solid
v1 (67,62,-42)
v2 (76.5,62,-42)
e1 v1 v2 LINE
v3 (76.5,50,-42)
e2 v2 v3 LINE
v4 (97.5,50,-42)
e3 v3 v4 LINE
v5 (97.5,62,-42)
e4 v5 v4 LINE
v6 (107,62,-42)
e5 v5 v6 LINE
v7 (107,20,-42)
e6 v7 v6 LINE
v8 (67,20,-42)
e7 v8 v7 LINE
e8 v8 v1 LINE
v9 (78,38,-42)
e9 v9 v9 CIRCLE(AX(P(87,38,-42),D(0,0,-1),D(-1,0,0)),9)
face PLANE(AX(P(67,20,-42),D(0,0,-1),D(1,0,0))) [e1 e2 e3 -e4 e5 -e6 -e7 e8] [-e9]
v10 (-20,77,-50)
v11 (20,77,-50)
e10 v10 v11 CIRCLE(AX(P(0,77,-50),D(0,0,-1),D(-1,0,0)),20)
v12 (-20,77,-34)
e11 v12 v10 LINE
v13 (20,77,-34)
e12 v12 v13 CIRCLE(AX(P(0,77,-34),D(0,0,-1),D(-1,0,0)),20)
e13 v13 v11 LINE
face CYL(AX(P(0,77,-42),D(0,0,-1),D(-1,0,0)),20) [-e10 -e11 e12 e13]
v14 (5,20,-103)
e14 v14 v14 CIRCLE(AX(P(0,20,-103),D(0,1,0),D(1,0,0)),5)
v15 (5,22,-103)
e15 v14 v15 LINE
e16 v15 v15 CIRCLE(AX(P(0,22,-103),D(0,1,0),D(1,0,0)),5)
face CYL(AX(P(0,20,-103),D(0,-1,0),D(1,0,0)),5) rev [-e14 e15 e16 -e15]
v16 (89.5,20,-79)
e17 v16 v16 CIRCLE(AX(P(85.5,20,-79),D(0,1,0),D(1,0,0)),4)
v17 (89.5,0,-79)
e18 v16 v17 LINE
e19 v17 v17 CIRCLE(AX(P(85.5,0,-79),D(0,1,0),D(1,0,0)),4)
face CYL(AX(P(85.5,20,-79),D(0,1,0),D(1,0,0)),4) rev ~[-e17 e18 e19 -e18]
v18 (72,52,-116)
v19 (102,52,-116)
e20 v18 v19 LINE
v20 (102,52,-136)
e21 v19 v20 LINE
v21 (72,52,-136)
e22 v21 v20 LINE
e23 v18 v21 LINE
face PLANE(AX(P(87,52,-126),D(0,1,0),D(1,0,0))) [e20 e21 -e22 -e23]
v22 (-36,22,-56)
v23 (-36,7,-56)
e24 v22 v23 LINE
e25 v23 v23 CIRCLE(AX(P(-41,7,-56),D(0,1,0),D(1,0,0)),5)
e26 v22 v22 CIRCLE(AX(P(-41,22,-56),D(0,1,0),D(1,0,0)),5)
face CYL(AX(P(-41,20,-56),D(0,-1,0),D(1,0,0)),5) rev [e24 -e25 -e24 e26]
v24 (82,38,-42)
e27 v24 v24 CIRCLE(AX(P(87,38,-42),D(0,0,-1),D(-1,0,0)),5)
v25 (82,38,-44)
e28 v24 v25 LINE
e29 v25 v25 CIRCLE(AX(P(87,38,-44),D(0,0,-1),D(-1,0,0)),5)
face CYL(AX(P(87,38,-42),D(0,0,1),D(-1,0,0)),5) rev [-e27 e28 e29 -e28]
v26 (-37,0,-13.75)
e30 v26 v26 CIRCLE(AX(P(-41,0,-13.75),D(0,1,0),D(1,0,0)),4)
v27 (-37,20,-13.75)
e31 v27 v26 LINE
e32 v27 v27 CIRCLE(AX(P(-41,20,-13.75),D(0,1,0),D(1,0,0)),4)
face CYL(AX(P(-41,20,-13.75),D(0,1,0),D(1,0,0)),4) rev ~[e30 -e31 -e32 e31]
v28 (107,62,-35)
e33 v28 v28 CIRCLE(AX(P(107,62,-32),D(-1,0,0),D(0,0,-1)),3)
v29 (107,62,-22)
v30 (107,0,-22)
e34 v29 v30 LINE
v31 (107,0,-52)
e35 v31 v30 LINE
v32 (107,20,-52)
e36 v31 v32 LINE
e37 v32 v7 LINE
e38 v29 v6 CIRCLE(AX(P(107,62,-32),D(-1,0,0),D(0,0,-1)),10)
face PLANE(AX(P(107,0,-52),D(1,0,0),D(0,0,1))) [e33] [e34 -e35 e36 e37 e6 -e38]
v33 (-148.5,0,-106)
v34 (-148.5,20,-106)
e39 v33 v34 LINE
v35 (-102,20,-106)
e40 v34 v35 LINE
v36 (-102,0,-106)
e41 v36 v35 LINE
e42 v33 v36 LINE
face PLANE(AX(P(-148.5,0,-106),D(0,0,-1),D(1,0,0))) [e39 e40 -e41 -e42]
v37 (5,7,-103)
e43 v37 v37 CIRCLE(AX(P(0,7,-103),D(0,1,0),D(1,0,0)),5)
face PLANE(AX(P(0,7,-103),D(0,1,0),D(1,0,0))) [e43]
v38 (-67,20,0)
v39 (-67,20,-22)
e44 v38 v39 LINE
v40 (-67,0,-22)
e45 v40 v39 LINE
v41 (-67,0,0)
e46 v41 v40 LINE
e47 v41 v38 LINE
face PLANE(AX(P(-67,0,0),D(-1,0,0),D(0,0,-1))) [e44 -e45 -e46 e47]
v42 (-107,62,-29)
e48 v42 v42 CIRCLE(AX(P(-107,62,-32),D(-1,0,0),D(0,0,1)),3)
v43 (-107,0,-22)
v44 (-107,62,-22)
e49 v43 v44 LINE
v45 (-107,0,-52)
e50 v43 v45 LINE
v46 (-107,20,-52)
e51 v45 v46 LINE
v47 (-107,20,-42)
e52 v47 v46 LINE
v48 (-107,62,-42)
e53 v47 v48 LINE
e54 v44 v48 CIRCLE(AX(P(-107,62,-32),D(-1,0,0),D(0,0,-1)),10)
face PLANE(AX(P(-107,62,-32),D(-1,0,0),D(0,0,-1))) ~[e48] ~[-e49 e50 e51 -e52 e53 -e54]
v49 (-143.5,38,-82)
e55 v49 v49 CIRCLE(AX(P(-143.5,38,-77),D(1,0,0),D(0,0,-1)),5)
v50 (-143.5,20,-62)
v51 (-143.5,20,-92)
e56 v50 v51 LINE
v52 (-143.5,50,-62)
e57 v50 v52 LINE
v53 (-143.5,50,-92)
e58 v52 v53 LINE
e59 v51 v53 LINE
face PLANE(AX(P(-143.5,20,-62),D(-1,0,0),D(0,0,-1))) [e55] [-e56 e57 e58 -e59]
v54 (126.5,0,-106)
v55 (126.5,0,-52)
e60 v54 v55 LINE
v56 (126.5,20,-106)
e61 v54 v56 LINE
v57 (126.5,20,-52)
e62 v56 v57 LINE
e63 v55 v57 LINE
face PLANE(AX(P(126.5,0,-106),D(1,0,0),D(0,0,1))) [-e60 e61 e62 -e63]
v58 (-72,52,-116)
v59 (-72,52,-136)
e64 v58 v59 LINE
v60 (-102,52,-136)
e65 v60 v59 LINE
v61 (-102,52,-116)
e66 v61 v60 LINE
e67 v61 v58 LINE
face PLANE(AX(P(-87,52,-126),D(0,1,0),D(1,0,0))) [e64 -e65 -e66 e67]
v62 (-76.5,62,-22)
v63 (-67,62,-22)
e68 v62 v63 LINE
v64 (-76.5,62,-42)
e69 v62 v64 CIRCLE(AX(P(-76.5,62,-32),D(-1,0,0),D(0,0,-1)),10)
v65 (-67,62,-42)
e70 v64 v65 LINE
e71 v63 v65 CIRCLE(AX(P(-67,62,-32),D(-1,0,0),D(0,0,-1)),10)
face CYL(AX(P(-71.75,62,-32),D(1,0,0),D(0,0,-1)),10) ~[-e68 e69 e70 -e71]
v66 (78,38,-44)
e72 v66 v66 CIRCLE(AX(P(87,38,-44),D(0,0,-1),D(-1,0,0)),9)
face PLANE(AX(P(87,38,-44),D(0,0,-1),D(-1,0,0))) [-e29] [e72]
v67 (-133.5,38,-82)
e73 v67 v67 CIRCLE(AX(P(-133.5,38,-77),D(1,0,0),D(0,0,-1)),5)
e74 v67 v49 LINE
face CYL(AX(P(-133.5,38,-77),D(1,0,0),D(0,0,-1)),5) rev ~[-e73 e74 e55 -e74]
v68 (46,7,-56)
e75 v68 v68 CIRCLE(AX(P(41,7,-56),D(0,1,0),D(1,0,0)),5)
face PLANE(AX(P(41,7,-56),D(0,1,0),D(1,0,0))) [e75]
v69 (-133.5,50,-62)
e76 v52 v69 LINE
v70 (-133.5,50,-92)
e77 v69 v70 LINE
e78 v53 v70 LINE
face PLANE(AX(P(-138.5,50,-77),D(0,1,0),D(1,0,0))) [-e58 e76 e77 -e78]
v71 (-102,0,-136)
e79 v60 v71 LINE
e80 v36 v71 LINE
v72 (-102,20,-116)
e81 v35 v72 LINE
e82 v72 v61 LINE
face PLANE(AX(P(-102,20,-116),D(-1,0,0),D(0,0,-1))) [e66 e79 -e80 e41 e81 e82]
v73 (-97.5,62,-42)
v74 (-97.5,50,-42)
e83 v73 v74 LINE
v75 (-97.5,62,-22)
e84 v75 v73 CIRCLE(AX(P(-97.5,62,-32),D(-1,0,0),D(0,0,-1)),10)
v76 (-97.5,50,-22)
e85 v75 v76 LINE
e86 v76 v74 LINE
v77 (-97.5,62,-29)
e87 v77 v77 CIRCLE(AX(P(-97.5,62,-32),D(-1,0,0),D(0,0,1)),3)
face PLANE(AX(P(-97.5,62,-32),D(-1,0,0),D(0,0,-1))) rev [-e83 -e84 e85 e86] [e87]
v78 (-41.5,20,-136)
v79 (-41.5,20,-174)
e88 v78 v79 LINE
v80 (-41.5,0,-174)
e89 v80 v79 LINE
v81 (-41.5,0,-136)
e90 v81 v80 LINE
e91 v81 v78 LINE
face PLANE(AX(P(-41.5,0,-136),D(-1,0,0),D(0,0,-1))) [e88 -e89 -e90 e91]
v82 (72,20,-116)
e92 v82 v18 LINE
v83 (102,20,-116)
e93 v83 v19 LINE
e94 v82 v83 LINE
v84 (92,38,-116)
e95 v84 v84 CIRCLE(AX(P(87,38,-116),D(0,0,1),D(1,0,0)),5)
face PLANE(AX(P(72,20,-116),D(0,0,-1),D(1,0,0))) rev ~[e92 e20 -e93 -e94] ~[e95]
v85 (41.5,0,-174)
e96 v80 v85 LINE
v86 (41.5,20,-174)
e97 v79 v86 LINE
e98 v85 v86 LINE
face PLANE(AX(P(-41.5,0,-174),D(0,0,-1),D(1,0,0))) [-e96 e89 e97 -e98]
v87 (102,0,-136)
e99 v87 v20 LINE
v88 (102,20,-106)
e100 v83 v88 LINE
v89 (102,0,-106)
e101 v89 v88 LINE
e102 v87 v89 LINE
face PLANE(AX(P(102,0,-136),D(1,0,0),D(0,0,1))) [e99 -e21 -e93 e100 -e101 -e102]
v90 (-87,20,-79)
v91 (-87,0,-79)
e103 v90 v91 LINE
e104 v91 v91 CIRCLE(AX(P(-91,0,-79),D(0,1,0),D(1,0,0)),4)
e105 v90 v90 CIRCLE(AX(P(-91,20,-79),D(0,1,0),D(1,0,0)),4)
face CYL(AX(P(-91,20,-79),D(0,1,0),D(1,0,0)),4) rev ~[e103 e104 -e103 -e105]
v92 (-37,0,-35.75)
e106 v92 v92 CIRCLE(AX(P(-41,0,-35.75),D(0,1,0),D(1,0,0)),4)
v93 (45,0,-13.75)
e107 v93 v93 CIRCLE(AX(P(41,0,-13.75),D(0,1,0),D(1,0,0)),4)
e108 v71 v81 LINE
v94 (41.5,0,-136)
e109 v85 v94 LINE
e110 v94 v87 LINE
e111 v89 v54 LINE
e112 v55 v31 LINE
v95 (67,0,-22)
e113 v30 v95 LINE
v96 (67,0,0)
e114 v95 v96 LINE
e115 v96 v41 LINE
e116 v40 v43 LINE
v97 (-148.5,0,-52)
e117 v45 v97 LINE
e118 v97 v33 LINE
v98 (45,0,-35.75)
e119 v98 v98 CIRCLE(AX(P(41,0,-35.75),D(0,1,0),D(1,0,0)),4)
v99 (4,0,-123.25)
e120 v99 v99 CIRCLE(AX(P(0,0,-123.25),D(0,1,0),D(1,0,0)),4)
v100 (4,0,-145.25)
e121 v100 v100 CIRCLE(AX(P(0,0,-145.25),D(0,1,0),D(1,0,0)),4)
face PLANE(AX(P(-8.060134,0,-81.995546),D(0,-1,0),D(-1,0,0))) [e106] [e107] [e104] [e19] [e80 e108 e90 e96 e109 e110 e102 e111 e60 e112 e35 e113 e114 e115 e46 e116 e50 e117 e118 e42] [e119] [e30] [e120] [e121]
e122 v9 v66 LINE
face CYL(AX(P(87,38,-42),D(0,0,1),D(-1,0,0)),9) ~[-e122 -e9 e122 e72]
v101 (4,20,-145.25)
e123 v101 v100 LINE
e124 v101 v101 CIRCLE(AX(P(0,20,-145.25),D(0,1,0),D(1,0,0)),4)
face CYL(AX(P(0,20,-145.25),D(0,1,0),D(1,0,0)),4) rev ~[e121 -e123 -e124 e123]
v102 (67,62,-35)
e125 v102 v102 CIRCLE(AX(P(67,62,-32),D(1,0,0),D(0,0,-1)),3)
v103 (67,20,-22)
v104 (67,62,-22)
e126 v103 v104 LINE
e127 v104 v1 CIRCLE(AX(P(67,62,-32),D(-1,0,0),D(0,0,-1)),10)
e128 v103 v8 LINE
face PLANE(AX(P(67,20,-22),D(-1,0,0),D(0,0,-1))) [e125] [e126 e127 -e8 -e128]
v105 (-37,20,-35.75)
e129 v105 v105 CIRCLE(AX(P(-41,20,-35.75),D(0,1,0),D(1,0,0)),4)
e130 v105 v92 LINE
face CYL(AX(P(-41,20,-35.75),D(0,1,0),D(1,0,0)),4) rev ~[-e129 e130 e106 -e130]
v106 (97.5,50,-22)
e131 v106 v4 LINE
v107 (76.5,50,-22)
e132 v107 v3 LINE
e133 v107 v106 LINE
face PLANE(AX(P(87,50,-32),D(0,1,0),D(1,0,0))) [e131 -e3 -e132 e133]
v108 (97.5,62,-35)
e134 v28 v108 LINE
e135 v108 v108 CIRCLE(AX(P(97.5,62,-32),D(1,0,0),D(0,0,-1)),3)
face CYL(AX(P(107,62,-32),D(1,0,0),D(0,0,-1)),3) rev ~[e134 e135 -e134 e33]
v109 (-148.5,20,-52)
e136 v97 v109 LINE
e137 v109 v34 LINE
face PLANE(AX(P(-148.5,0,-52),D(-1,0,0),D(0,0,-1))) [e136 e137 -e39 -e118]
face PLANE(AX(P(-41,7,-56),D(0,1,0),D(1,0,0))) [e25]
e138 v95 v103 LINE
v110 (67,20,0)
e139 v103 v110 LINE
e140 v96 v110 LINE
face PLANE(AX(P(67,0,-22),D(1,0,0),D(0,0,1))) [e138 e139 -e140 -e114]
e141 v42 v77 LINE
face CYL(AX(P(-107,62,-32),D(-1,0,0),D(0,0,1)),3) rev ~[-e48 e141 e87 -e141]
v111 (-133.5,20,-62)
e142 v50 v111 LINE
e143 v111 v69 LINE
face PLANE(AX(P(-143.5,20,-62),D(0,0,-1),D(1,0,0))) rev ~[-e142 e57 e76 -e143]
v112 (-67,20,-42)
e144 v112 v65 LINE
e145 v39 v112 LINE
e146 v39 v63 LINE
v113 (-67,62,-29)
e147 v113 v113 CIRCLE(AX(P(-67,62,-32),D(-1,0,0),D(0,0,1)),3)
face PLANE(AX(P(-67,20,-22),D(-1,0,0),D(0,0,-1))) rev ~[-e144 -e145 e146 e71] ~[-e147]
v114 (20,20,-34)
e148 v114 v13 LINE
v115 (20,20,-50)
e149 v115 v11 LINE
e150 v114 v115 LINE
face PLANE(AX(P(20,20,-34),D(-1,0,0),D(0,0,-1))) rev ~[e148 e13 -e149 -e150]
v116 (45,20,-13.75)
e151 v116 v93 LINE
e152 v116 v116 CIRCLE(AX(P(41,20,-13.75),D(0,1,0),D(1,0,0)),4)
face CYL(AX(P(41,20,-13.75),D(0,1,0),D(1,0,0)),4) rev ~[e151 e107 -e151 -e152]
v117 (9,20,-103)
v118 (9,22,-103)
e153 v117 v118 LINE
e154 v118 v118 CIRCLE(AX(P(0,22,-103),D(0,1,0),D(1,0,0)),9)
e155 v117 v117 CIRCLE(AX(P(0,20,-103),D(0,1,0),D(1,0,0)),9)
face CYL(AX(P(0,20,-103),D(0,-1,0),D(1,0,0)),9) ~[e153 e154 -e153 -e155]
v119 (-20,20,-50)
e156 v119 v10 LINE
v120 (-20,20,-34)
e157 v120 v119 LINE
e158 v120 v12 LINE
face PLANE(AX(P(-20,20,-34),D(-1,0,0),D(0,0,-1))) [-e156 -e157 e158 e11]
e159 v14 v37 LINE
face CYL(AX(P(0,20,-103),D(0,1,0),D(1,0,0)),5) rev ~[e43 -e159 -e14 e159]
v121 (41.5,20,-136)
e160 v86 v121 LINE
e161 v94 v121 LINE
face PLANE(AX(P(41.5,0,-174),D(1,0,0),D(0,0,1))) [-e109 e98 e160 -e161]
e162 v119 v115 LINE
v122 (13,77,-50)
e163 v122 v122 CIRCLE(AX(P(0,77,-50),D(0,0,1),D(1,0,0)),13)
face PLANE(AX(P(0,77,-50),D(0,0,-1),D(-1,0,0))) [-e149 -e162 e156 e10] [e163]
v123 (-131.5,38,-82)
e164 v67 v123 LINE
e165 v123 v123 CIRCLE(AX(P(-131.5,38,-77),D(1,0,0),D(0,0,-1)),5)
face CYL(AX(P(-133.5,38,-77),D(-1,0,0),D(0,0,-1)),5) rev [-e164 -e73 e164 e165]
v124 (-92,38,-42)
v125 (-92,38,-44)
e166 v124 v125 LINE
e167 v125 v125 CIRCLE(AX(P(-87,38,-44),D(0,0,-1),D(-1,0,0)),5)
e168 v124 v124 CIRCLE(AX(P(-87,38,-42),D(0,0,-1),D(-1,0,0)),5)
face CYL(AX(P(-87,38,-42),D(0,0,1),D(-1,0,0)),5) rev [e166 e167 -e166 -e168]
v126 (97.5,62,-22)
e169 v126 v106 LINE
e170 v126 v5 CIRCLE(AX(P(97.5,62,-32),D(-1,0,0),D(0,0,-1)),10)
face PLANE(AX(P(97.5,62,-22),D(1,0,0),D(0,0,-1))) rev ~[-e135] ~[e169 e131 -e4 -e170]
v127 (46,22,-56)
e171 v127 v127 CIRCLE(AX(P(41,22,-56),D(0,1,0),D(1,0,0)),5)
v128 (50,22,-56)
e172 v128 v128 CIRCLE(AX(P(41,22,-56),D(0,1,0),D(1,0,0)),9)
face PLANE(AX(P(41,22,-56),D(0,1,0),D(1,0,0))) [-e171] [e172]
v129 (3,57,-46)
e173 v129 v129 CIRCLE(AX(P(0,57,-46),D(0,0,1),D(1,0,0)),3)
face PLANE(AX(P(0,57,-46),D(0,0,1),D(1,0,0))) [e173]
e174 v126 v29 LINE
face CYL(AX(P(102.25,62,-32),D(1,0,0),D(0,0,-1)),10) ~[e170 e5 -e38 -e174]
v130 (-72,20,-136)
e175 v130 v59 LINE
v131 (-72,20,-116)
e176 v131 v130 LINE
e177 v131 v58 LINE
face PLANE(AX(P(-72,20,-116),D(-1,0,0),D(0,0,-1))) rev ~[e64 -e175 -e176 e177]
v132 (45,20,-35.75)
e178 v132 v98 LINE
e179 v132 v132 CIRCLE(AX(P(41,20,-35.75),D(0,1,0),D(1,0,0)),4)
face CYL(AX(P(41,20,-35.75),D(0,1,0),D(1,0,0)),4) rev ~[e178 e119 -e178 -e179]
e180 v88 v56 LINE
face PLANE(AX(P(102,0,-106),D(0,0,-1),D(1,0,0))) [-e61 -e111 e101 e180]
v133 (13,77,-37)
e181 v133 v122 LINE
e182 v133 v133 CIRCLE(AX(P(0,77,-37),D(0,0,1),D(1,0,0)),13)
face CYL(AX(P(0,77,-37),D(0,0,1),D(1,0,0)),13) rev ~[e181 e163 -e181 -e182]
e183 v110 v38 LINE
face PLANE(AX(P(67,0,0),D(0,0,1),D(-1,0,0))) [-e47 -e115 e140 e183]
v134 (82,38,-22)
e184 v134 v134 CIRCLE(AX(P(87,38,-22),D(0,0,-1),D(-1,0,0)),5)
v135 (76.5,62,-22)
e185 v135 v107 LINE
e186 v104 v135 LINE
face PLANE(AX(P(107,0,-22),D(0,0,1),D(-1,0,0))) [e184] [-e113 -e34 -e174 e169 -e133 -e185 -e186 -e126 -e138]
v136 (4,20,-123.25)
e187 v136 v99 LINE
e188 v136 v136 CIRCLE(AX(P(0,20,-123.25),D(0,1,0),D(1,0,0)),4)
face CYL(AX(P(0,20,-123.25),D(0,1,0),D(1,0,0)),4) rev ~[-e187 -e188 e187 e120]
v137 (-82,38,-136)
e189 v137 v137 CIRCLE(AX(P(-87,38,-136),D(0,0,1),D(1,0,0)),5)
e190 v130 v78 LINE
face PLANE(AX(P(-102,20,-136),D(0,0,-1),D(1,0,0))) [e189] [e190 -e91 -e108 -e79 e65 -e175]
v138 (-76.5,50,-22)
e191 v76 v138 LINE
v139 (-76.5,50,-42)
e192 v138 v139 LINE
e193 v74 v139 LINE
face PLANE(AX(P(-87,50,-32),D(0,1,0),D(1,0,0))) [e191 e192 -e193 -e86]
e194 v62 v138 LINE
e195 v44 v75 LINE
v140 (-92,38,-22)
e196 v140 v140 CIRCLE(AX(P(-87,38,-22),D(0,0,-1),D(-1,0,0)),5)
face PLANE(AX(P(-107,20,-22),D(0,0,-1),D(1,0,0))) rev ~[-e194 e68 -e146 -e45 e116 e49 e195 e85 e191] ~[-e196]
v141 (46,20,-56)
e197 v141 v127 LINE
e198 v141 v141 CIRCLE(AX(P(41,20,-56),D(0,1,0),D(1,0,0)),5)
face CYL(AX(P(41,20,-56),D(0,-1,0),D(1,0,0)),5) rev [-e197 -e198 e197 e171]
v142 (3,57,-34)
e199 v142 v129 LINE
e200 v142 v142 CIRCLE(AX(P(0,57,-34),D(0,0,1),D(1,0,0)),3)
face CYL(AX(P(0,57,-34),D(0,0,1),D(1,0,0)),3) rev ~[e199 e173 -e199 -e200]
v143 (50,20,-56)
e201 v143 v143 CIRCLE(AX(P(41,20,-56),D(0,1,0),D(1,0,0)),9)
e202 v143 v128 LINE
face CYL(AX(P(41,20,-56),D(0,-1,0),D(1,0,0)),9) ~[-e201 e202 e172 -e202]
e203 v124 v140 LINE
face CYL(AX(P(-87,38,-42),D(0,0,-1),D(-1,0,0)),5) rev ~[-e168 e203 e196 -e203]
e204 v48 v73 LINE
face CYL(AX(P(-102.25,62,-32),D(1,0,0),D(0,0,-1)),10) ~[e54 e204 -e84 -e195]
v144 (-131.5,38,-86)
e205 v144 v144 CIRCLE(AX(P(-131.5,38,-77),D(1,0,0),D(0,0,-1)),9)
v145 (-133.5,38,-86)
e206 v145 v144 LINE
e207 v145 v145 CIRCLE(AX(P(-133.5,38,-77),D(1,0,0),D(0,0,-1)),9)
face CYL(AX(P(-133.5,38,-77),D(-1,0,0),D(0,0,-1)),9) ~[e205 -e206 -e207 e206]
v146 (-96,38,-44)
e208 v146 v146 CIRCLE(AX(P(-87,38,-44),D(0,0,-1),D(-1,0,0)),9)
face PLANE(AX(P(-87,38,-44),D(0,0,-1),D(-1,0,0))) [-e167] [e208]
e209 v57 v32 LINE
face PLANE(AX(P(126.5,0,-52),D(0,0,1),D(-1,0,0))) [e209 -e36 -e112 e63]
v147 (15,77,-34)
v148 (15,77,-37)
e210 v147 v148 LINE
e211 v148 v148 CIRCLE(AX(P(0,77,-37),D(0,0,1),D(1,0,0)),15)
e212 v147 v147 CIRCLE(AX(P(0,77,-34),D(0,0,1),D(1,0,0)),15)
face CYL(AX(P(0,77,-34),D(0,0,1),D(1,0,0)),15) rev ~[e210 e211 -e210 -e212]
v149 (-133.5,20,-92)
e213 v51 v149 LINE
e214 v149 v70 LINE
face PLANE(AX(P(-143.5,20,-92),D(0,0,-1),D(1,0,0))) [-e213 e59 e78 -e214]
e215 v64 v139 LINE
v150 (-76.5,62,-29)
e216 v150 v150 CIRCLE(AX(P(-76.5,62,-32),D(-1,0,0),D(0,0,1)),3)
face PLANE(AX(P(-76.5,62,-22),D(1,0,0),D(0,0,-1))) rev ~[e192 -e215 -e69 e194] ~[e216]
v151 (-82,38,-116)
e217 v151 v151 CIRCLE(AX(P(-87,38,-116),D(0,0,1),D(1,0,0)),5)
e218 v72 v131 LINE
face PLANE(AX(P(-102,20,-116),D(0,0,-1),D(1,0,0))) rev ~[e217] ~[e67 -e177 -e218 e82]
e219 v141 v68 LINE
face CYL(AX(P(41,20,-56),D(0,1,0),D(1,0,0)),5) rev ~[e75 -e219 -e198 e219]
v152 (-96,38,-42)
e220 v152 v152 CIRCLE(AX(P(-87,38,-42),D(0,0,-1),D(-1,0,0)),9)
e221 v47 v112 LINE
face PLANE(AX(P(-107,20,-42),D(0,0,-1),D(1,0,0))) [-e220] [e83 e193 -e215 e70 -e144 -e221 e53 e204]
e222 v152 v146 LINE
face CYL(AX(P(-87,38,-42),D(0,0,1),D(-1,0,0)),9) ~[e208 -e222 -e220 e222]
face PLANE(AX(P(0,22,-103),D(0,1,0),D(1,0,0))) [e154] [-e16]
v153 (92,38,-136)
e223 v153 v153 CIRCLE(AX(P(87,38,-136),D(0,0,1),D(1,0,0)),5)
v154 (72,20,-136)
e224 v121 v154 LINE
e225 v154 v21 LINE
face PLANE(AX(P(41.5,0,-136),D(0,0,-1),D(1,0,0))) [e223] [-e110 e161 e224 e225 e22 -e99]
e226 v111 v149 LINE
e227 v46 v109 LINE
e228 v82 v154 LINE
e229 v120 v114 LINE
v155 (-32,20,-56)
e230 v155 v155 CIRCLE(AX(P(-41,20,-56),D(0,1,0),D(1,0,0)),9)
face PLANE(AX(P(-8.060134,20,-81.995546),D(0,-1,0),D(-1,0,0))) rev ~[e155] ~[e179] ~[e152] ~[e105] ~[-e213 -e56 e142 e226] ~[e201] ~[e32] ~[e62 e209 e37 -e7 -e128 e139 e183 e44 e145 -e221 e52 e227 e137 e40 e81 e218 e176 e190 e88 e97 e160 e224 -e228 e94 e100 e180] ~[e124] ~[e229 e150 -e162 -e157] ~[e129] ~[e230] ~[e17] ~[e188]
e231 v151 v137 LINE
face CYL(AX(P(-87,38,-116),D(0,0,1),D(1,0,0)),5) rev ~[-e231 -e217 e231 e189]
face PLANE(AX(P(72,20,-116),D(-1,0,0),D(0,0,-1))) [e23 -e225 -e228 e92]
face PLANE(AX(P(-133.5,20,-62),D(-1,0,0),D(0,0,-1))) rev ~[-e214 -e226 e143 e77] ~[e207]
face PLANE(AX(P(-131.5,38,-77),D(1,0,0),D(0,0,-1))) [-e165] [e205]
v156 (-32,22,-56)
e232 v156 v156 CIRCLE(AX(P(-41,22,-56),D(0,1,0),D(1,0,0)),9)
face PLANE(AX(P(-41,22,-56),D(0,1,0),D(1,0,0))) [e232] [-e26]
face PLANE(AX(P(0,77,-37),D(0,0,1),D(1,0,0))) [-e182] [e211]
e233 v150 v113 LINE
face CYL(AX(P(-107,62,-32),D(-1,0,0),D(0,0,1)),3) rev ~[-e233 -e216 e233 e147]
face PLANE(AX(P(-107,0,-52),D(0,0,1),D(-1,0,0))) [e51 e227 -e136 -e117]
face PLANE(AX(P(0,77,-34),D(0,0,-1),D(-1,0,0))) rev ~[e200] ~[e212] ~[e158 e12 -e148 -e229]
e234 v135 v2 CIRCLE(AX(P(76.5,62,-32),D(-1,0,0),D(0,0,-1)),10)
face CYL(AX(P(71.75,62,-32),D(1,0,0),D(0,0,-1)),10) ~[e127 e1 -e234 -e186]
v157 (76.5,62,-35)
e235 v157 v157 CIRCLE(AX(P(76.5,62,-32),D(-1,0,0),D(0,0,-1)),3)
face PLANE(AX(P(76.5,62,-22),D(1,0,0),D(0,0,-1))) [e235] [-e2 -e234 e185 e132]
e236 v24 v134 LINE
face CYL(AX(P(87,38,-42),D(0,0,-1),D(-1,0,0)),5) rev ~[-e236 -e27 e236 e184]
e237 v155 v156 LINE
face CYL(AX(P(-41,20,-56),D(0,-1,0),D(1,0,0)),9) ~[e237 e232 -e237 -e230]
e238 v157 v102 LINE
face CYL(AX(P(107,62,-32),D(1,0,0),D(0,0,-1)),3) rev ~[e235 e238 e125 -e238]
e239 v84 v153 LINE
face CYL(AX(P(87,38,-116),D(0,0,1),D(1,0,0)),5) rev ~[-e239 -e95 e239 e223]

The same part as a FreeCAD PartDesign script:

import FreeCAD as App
import Part
import Sketcher


def add_polygon(sketch, points):
    """Adds a closed chain of lines whose ends are joined by coincident constraints."""
    first, n = sketch.GeometryCount, len(points)
    for a, b in zip(points, points[1:] + points[:1]):
        sketch.addGeometry(Part.LineSegment(App.Vector(*a, 0), App.Vector(*b, 0)), False)
    for i in range(n):
        sketch.addConstraint(Sketcher.Constraint("Coincident", first + i, 2, first + (i + 1) % n, 1))

doc = App.newDocument("Part")
body = doc.addObject("PartDesign::Body", "Body")

sketch1 = doc.addObject("Sketcher::SketchObject", "Sketch")
body.addObject(sketch1)
sketch1.AttachmentSupport = (doc.XZ_Plane, [""])
sketch1.MapMode = "FlatFace"
add_polygon(sketch1, [(-42, -136), (-102, -136), (-102, -106), (-148, -106), (-148, -52), (-107, -52), (-107, -22), (-67, -22), (-67, 0), (67, 0), (67, -22), (107, -22), (107, -52), (126, -52), (126, -106), (102, -106), (102, -136), (42, -136), (42, -174), (-42, -174)])
sketch1.addConstraint([
    Sketcher.Constraint("Horizontal", 0),
    Sketcher.Constraint("Vertical", 1),
    Sketcher.Constraint("Horizontal", 2),
    Sketcher.Constraint("Vertical", 3),
    Sketcher.Constraint("Horizontal", 4),
    Sketcher.Constraint("Vertical", 5),
    Sketcher.Constraint("Horizontal", 6),
    Sketcher.Constraint("Vertical", 7),
    Sketcher.Constraint("Horizontal", 8),
    Sketcher.Constraint("Vertical", 9),
    Sketcher.Constraint("Horizontal", 10),
    Sketcher.Constraint("Vertical", 11),
    Sketcher.Constraint("Horizontal", 12),
    Sketcher.Constraint("Vertical", 13),
    Sketcher.Constraint("Horizontal", 14),
    Sketcher.Constraint("Vertical", 15),
    Sketcher.Constraint("Horizontal", 16),
    Sketcher.Constraint("Vertical", 17),
    Sketcher.Constraint("Horizontal", 18),
    Sketcher.Constraint("Vertical", 19),
    Sketcher.Constraint("Symmetric", 7, 2, 8, 2, -1, 1),
    Sketcher.Constraint("Symmetric", 5, 2, 10, 2, -2),
    Sketcher.Constraint("Symmetric", 1, 2, 14, 2, -2),
    Sketcher.Constraint("Symmetric", 16, 2, 19, 2, -2),
    Sketcher.Constraint("Horizontal", 4, 2, 11, 2),
    Sketcher.Constraint("Equal", 1, 5),
    Sketcher.Constraint("DistanceX", 6, 1, 6, 2, 40.0),
    Sketcher.Constraint("DistanceX", 8, 1, 8, 2, 134.0),
    Sketcher.Constraint("DistanceX", 18, 2, 18, 1, 83.0),
    Sketcher.Constraint("DistanceY", 1, 1, 1, 2, 30.0),
    Sketcher.Constraint("DistanceY", 3, 1, 3, 2, 54.0),
    Sketcher.Constraint("DistanceY", 7, 1, 7, 2, 22.0),
    Sketcher.Constraint("DistanceY", 17, 2, 17, 1, 38.0),
    Sketcher.Constraint("DistanceX", 0, 2, 0, 1, 60.5),
    Sketcher.Constraint("DistanceX", 2, 2, 2, 1, 46.5),
    Sketcher.Constraint("DistanceX", 12, 1, 12, 2, 19.5),
])
pad1 = doc.addObject("PartDesign::Pad", "Pad")
body.addObject(pad1)
pad1.Profile = sketch1
pad1.Length = 20
pad1.Reversed = True

sketch2 = doc.addObject("Sketcher::SketchObject", "Sketch001")
body.addObject(sketch2)
sketch2.AttachmentSupport = (doc.XZ_Plane, [""])
sketch2.MapMode = "FlatFace"
sketch2.AttachmentOffset = App.Placement(App.Vector(0, 0, -20), App.Rotation())
add_polygon(sketch2, [(-144, -92), (-144, -62), (-134, -62), (-134, -92)])
sketch2.addConstraint([
    Sketcher.Constraint("Vertical", 0),
    Sketcher.Constraint("Horizontal", 1),
    Sketcher.Constraint("Vertical", 2),
    Sketcher.Constraint("Horizontal", 3),
    Sketcher.Constraint("DistanceX", 1, 1, 1, 2, 10.0),
    Sketcher.Constraint("DistanceY", 0, 1, 0, 2, 30.0),
    Sketcher.Constraint("DistanceY", 0, 2, -1, 1, 62.0),
    Sketcher.Constraint("DistanceX", 0, 2, -1, 1, 143.5),
])
pad2 = doc.addObject("PartDesign::Pad", "Pad001")
body.addObject(pad2)
pad2.Profile = sketch2
pad2.Length = 30
pad2.Reversed = True

sketch3 = doc.addObject("Sketcher::SketchObject", "Sketch002")
body.addObject(sketch3)
sketch3.AttachmentSupport = (doc.XZ_Plane, [""])
sketch3.MapMode = "FlatFace"
sketch3.AttachmentOffset = App.Placement(App.Vector(0, 0, -20), App.Rotation())
add_polygon(sketch3, [(-107, -42), (-107, -22), (-67, -22), (-67, -42)])
add_polygon(sketch3, [(67, -42), (67, -22), (107, -22), (107, -42)])
sketch3.addConstraint([
    Sketcher.Constraint("Vertical", 0),
    Sketcher.Constraint("Horizontal", 1),
    Sketcher.Constraint("Vertical", 2),
    Sketcher.Constraint("Horizontal", 3),
    Sketcher.Constraint("Vertical", 4),
    Sketcher.Constraint("Horizontal", 5),
    Sketcher.Constraint("Vertical", 6),
    Sketcher.Constraint("Horizontal", 7),
    Sketcher.Constraint("Symmetric", 1, 2, 4, 2, -2),
    Sketcher.Constraint("Symmetric", 3, 2, 6, 2, -2),
    Sketcher.Constraint("DistanceX", 1, 1, 1, 2, 40.0),
    Sketcher.Constraint("DistanceY", 0, 1, 0, 2, 20.0),
    Sketcher.Constraint("DistanceX", 0, 2, -1, 1, 107.0),
    Sketcher.Constraint("DistanceY", 0, 2, -1, 1, 22.0),
])
pad3 = doc.addObject("PartDesign::Pad", "Pad002")
body.addObject(pad3)
pad3.Profile = sketch3
pad3.Length = 42
pad3.Reversed = True

sketch4 = doc.addObject("Sketcher::SketchObject", "Sketch003")
body.addObject(sketch4)
sketch4.AttachmentSupport = (doc.XZ_Plane, [""])
sketch4.MapMode = "FlatFace"
sketch4.AttachmentOffset = App.Placement(App.Vector(0, 0, -20), App.Rotation())
sketch4.addGeometry([
    Part.Circle(App.Vector(0, -103, 0), App.Vector(0, 0, 1), 5),
    Part.Circle(App.Vector(-41, -56, 0), App.Vector(0, 0, 1), 5),
    Part.Circle(App.Vector(41, -56, 0), App.Vector(0, 0, 1), 5),
], False)
sketch4.addConstraint([
    Sketcher.Constraint("Equal", 0, 1),
    Sketcher.Constraint("Equal", 1, 2),
    Sketcher.Constraint("Symmetric", 1, 3, 2, 3, -2),
    Sketcher.Constraint("PointOnObject", 0, 3, -2),
    Sketcher.Constraint("Diameter", 0, 10.0),
    Sketcher.Constraint("DistanceY", 0, 3, -1, 1, 103.0),
    Sketcher.Constraint("DistanceX", 1, 3, -1, 1, 41.0),
    Sketcher.Constraint("DistanceY", 1, 3, -1, 1, 56.0),
])
pocket1 = doc.addObject("PartDesign::Pocket", "Pocket")
body.addObject(pocket1)
pocket1.Profile = sketch4
pocket1.Length = 13
pocket1.Reversed = True

sketch5 = doc.addObject("Sketcher::SketchObject", "Sketch004")
body.addObject(sketch5)
sketch5.AttachmentSupport = (doc.YZ_Plane, [""])
sketch5.MapMode = "FlatFace"
sketch5.AttachmentOffset = App.Placement(App.Vector(0, 0, -133.5), App.Rotation())
sketch5.addGeometry(Part.Circle(App.Vector(38, -77, 0), App.Vector(0, 0, 1), 5), False)
sketch5.addConstraint([
    Sketcher.Constraint("Diameter", 0, 10.0),
    Sketcher.Constraint("DistanceX", -1, 1, 0, 3, 38.0),
    Sketcher.Constraint("DistanceY", 0, 3, -1, 1, 77.0),
])
pocket2 = doc.addObject("PartDesign::Pocket", "Pocket001")
body.addObject(pocket2)
pocket2.Profile = sketch5
pocket2.Type = "UpToFirst"

sketch6 = doc.addObject("Sketcher::SketchObject", "Sketch005")
body.addObject(sketch6)
sketch6.AttachmentSupport = (doc.XY_Plane, [""])
sketch6.MapMode = "FlatFace"
sketch6.AttachmentOffset = App.Placement(App.Vector(0, 0, -42), App.Rotation())
sketch6.addGeometry(Part.Circle(App.Vector(-87, 38, 0), App.Vector(0, 0, 1), 5), False)
sketch6.addConstraint([
    Sketcher.Constraint("Diameter", 0, 10.0),
    Sketcher.Constraint("DistanceX", 0, 3, -1, 1, 87.0),
    Sketcher.Constraint("DistanceY", -1, 1, 0, 3, 38.0),
])
pocket3 = doc.addObject("PartDesign::Pocket", "Pocket002")
body.addObject(pocket3)
pocket3.Profile = sketch6
pocket3.Type = "UpToFirst"
pocket3.Reversed = True

sketch7 = doc.addObject("Sketcher::SketchObject", "Sketch006")
body.addObject(sketch7)
sketch7.AttachmentSupport = (doc.XY_Plane, [""])
sketch7.MapMode = "FlatFace"
sketch7.AttachmentOffset = App.Placement(App.Vector(0, 0, -42), App.Rotation())
sketch7.addGeometry(Part.Circle(App.Vector(87, 38, 0), App.Vector(0, 0, 1), 5), False)
sketch7.addConstraint([
    Sketcher.Constraint("Diameter", 0, 10.0),
    Sketcher.Constraint("DistanceX", -1, 1, 0, 3, 87.0),
    Sketcher.Constraint("DistanceY", -1, 1, 0, 3, 38.0),
])
pocket4 = doc.addObject("PartDesign::Pocket", "Pocket003")
body.addObject(pocket4)
pocket4.Profile = sketch7
pocket4.Type = "UpToFirst"
pocket4.Reversed = True

sketch8 = doc.addObject("Sketcher::SketchObject", "Sketch007")
body.addObject(sketch8)
sketch8.AttachmentSupport = (doc.YZ_Plane, [""])
sketch8.MapMode = "FlatFace"
sketch8.AttachmentOffset = App.Placement(App.Vector(0, 0, -133.5), App.Rotation())
sketch8.addGeometry([
    Part.Circle(App.Vector(38, -77, 0), App.Vector(0, 0, 1), 9),
    Part.Circle(App.Vector(38, -77, 0), App.Vector(0, 0, 1), 5),
], False)
sketch8.addConstraint([
    Sketcher.Constraint("Coincident", 1, 3, 0, 3),
    Sketcher.Constraint("Diameter", 0, 18.0),
    Sketcher.Constraint("Diameter", 1, 10.0),
    Sketcher.Constraint("DistanceX", -1, 1, 0, 3, 38.0),
    Sketcher.Constraint("DistanceY", 0, 3, -1, 1, 77.0),
])
pad4 = doc.addObject("PartDesign::Pad", "Pad003")
body.addObject(pad4)
pad4.Profile = sketch8
pad4.Length = 2

sketch9 = doc.addObject("Sketcher::SketchObject", "Sketch008")
body.addObject(sketch9)
sketch9.AttachmentSupport = (doc.XY_Plane, [""])
sketch9.MapMode = "FlatFace"
sketch9.AttachmentOffset = App.Placement(App.Vector(0, 0, -42), App.Rotation())
sketch9.addGeometry([
    Part.Circle(App.Vector(87, 38, 0), App.Vector(0, 0, 1), 9),
    Part.Circle(App.Vector(87, 38, 0), App.Vector(0, 0, 1), 5),
    Part.Circle(App.Vector(-87, 38, 0), App.Vector(0, 0, 1), 9),
    Part.Circle(App.Vector(-87, 38, 0), App.Vector(0, 0, 1), 5),
], False)
sketch9.addConstraint([
    Sketcher.Constraint("Coincident", 1, 3, 0, 3),
    Sketcher.Constraint("Coincident", 3, 3, 2, 3),
    Sketcher.Constraint("Equal", 0, 2),
    Sketcher.Constraint("Equal", 1, 3),
    Sketcher.Constraint("Symmetric", 0, 3, 2, 3, -2),
    Sketcher.Constraint("Diameter", 0, 18.0),
    Sketcher.Constraint("Diameter", 1, 10.0),
    Sketcher.Constraint("DistanceX", -1, 1, 0, 3, 87.0),
    Sketcher.Constraint("DistanceY", -1, 1, 0, 3, 38.0),
])
pad5 = doc.addObject("PartDesign::Pad", "Pad004")
body.addObject(pad5)
pad5.Profile = sketch9
pad5.Length = 2
pad5.Reversed = True

sketch10 = doc.addObject("Sketcher::SketchObject", "Sketch009")
body.addObject(sketch10)
sketch10.AttachmentSupport = (doc.XZ_Plane, [""])
sketch10.MapMode = "FlatFace"
sketch10.AttachmentOffset = App.Placement(App.Vector(0, 0, -20), App.Rotation())
sketch10.addGeometry([
    Part.Circle(App.Vector(-41, -56, 0), App.Vector(0, 0, 1), 9),
    Part.Circle(App.Vector(-41, -56, 0), App.Vector(0, 0, 1), 5),
    Part.Circle(App.Vector(0, -103, 0), App.Vector(0, 0, 1), 9),
    Part.Circle(App.Vector(0, -103, 0), App.Vector(0, 0, 1), 5),
    Part.Circle(App.Vector(41, -56, 0), App.Vector(0, 0, 1), 9),
    Part.Circle(App.Vector(41, -56, 0), App.Vector(0, 0, 1), 5),
], False)
sketch10.addConstraint([
    Sketcher.Constraint("Coincident", 1, 3, 0, 3),
    Sketcher.Constraint("Coincident", 3, 3, 2, 3),
    Sketcher.Constraint("Coincident", 5, 3, 4, 3),
    Sketcher.Constraint("Equal", 0, 2),
    Sketcher.Constraint("Equal", 1, 3),
    Sketcher.Constraint("Equal", 2, 4),
    Sketcher.Constraint("Equal", 3, 5),
    Sketcher.Constraint("Symmetric", 0, 3, 4, 3, -2),
    Sketcher.Constraint("PointOnObject", 2, 3, -2),
    Sketcher.Constraint("Diameter", 0, 18.0),
    Sketcher.Constraint("Diameter", 1, 10.0),
    Sketcher.Constraint("DistanceX", 0, 3, -1, 1, 41.0),
    Sketcher.Constraint("DistanceY", 0, 3, -1, 1, 56.0),
    Sketcher.Constraint("DistanceY", 2, 3, -1, 1, 103.0),
])
pad6 = doc.addObject("PartDesign::Pad", "Pad005")
body.addObject(pad6)
pad6.Profile = sketch10
pad6.Length = 2
pad6.Reversed = True

sketch11 = doc.addObject("Sketcher::SketchObject", "Sketch010")
body.addObject(sketch11)
sketch11.AttachmentSupport = (doc.XZ_Plane, [""])
sketch11.MapMode = "FlatFace"
sketch11.AttachmentOffset = App.Placement(App.Vector(0, 0, -20), App.Rotation())
sketch11.addGeometry([
    Part.Circle(App.Vector(-41, -35.8, 0), App.Vector(0, 0, 1), 4),
    Part.Circle(App.Vector(41, -35.8, 0), App.Vector(0, 0, 1), 4),
    Part.Circle(App.Vector(-41, -13.8, 0), App.Vector(0, 0, 1), 4),
    Part.Circle(App.Vector(41, -13.8, 0), App.Vector(0, 0, 1), 4),
    Part.Circle(App.Vector(-91, -79, 0), App.Vector(0, 0, 1), 4),
    Part.Circle(App.Vector(0, -123.2, 0), App.Vector(0, 0, 1), 4),
    Part.Circle(App.Vector(0, -145.2, 0), App.Vector(0, 0, 1), 4),
    Part.Circle(App.Vector(85.5, -79, 0), App.Vector(0, 0, 1), 4),
], False)
sketch11.addConstraint([
    Sketcher.Constraint("Equal", 0, 1),
    Sketcher.Constraint("Equal", 1, 2),
    Sketcher.Constraint("Equal", 2, 3),
    Sketcher.Constraint("Equal", 3, 4),
    Sketcher.Constraint("Equal", 4, 5),
    Sketcher.Constraint("Equal", 5, 6),
    Sketcher.Constraint("Equal", 6, 7),
    Sketcher.Constraint("Symmetric", 0, 3, 1, 3, -2),
    Sketcher.Constraint("Symmetric", 2, 3, 3, 3, -2),
    Sketcher.Constraint("PointOnObject", 5, 3, -2),
    Sketcher.Constraint("PointOnObject", 6, 3, -2),
    Sketcher.Constraint("Horizontal", 4, 3, 7, 3),
    Sketcher.Constraint("Vertical", 0, 3, 2, 3),
    Sketcher.Constraint("Diameter", 0, 8.0),
    Sketcher.Constraint("DistanceX", 0, 3, -1, 1, 41.0),
    Sketcher.Constraint("DistanceX", 4, 3, -1, 1, 91.0),
    Sketcher.Constraint("DistanceY", 4, 3, -1, 1, 79.0),
    Sketcher.Constraint("DistanceY", 0, 3, 2, 3, 22.0),
    Sketcher.Constraint("DistanceY", 6, 3, 5, 3, 22.0),
    Sketcher.Constraint("DistanceX", -1, 1, 7, 3, 85.5),
    Sketcher.Constraint("DistanceY", 5, 3, 0, 3, 87.5),
    Sketcher.Constraint("DistanceY", 0, 3, -1, 1, 35.75),
])
pocket5 = doc.addObject("PartDesign::Pocket", "Pocket004")
body.addObject(pocket5)
pocket5.Profile = sketch11
pocket5.Type = "ThroughAll"
pocket5.Reversed = True

sketch12 = doc.addObject("Sketcher::SketchObject", "Sketch011")
body.addObject(sketch12)
sketch12.AttachmentSupport = (doc.XZ_Plane, [""])
sketch12.MapMode = "FlatFace"
sketch12.AttachmentOffset = App.Placement(App.Vector(0, 0, -20), App.Rotation())
add_polygon(sketch12, [(-20, -50), (-20, -34), (20, -34), (20, -50)])
sketch12.addConstraint([
    Sketcher.Constraint("Vertical", 0),
    Sketcher.Constraint("Horizontal", 1),
    Sketcher.Constraint("Vertical", 2),
    Sketcher.Constraint("Horizontal", 3),
    Sketcher.Constraint("DistanceX", 1, 1, 1, 2, 40.0),
    Sketcher.Constraint("DistanceY", 0, 1, 0, 2, 16.0),
    Sketcher.Constraint("DistanceX", 0, 2, -1, 1, 20.0),
    Sketcher.Constraint("DistanceY", 0, 2, -1, 1, 34.0),
])
pad7 = doc.addObject("PartDesign::Pad", "Pad006")
body.addObject(pad7)
pad7.Profile = sketch12
pad7.Length = 57
pad7.Reversed = True

sketch13 = doc.addObject("Sketcher::SketchObject", "Sketch012")
body.addObject(sketch13)
sketch13.AttachmentSupport = (doc.XZ_Plane, [""])
sketch13.MapMode = "FlatFace"
sketch13.AttachmentOffset = App.Placement(App.Vector(0, 0, -77), App.Rotation())
add_polygon(sketch13, [(-20, -50), (-20, -34), (0, -34), (0, -50)])
sketch13.addConstraint([
    Sketcher.Constraint("Vertical", 0),
    Sketcher.Constraint("Horizontal", 1),
    Sketcher.Constraint("Vertical", 2),
    Sketcher.Constraint("Horizontal", 3),
    Sketcher.Constraint("PointOnObject", 1, 2, -2),
    Sketcher.Constraint("DistanceX", 1, 1, 1, 2, 20.0),
    Sketcher.Constraint("DistanceY", 0, 1, 0, 2, 16.0),
    Sketcher.Constraint("DistanceY", 0, 2, -1, 1, 34.0),
])
revolution = doc.addObject("PartDesign::Revolution", "Revolution")
body.addObject(revolution)
revolution.Profile = sketch13
revolution.ReferenceAxis = (sketch13, ["V_Axis"])
revolution.Angle = 180
revolution.Reversed = True

sketch14 = doc.addObject("Sketcher::SketchObject", "Sketch013")
body.addObject(sketch14)
sketch14.AttachmentSupport = (doc.XY_Plane, [""])
sketch14.MapMode = "FlatFace"
sketch14.AttachmentOffset = App.Placement(App.Vector(0, 0, -34), App.Rotation())
sketch14.addGeometry(Part.Circle(App.Vector(0, 77, 0), App.Vector(0, 0, 1), 15), False)
sketch14.addConstraint([
    Sketcher.Constraint("PointOnObject", 0, 3, -2),
    Sketcher.Constraint("Diameter", 0, 30.0),
    Sketcher.Constraint("DistanceY", -1, 1, 0, 3, 77.0),
])
pocket6 = doc.addObject("PartDesign::Pocket", "Pocket005")
body.addObject(pocket6)
pocket6.Profile = sketch14
pocket6.Type = "TwoLengths"
pocket6.Length = 35
pocket6.Length2 = 3
pocket6.Reversed = True

sketch15 = doc.addObject("Sketcher::SketchObject", "Sketch014")
body.addObject(sketch15)
sketch15.AttachmentSupport = (doc.XY_Plane, [""])
sketch15.MapMode = "FlatFace"
sketch15.AttachmentOffset = App.Placement(App.Vector(0, 0, -37), App.Rotation())
sketch15.addGeometry(Part.Circle(App.Vector(0, 77, 0), App.Vector(0, 0, 1), 13), False)
sketch15.addConstraint([
    Sketcher.Constraint("PointOnObject", 0, 3, -2),
    Sketcher.Constraint("Diameter", 0, 26.0),
    Sketcher.Constraint("DistanceY", -1, 1, 0, 3, 77.0),
])
pocket7 = doc.addObject("PartDesign::Pocket", "Pocket006")
body.addObject(pocket7)
pocket7.Profile = sketch15
pocket7.Type = "UpToFirst"

sketch16 = doc.addObject("Sketcher::SketchObject", "Sketch015")
body.addObject(sketch16)
sketch16.AttachmentSupport = (doc.XY_Plane, [""])
sketch16.MapMode = "FlatFace"
sketch16.AttachmentOffset = App.Placement(App.Vector(0, 0, -34), App.Rotation())
sketch16.addGeometry(Part.Circle(App.Vector(0, 57, 0), App.Vector(0, 0, 1), 3), False)
sketch16.addConstraint([
    Sketcher.Constraint("PointOnObject", 0, 3, -2),
    Sketcher.Constraint("Diameter", 0, 6.0),
    Sketcher.Constraint("DistanceY", -1, 1, 0, 3, 57.0),
])
pocket8 = doc.addObject("PartDesign::Pocket", "Pocket007")
body.addObject(pocket8)
pocket8.Profile = sketch16
pocket8.Length = 12

sketch17 = doc.addObject("Sketcher::SketchObject", "Sketch016")
body.addObject(sketch17)
sketch17.AttachmentSupport = (doc.XZ_Plane, [""])
sketch17.MapMode = "FlatFace"
sketch17.AttachmentOffset = App.Placement(App.Vector(0, 0, -62), App.Rotation())
add_polygon(sketch17, [(-107, -42), (-107, -32), (-98, -32), (-98, -42)])
add_polygon(sketch17, [(-76, -42), (-76, -32), (-67, -32), (-67, -42)])
add_polygon(sketch17, [(98, -42), (98, -32), (107, -32), (107, -42)])
add_polygon(sketch17, [(67, -42), (67, -32), (76, -32), (76, -42)])
sketch17.addGeometry(Part.LineSegment(App.Vector(107, -32, 0), App.Vector(-107, -32, 0)), True)
sketch17.addConstraint([
    Sketcher.Constraint("Vertical", 0),
    Sketcher.Constraint("Horizontal", 1),
    Sketcher.Constraint("Vertical", 2),
    Sketcher.Constraint("Horizontal", 3),
    Sketcher.Constraint("Vertical", 4),
    Sketcher.Constraint("Horizontal", 5),
    Sketcher.Constraint("Vertical", 6),
    Sketcher.Constraint("Horizontal", 7),
    Sketcher.Constraint("Vertical", 8),
    Sketcher.Constraint("Horizontal", 9),
    Sketcher.Constraint("Vertical", 10),
    Sketcher.Constraint("Horizontal", 11),
    Sketcher.Constraint("Vertical", 12),
    Sketcher.Constraint("Horizontal", 13),
    Sketcher.Constraint("Vertical", 14),
    Sketcher.Constraint("Horizontal", 15),
    Sketcher.Constraint("Horizontal", 16),
    Sketcher.Constraint("Coincident", 16, 1, 9, 2),
    Sketcher.Constraint("Coincident", 16, 2, 0, 2),
    Sketcher.Constraint("Symmetric", 3, 2, 10, 2, -2),
    Sketcher.Constraint("Symmetric", 5, 2, 12, 2, -2),
    Sketcher.Constraint("Symmetric", 7, 2, 14, 2, -2),
    Sketcher.Constraint("Horizontal", 1, 2, 4, 2),
    Sketcher.Constraint("Horizontal", 3, 2, 6, 2),
    Sketcher.Constraint("Equal", 3, 5),
    Sketcher.Constraint("Equal", 7, 9),
    Sketcher.Constraint("DistanceX", 16, 2, 16, 1, 214.0),
    Sketcher.Constraint("DistanceY", 0, 1, 0, 2, 10.0),
    Sketcher.Constraint("DistanceX", 1, 1, 1, 2, 9.5),
    Sketcher.Constraint("DistanceY", 0, 2, -1, 1, 32.0),
    Sketcher.Constraint("DistanceX", 5, 2, -1, 1, 67.0),
])
revolution2 = doc.addObject("PartDesign::Revolution", "Revolution001")
body.addObject(revolution2)
revolution2.Profile = sketch17
revolution2.ReferenceAxis = (sketch17, ["Axis0"])
revolution2.Angle = 360

sketch18 = doc.addObject("Sketcher::SketchObject", "Sketch017")
body.addObject(sketch18)
sketch18.AttachmentSupport = (doc.XZ_Plane, [""])
sketch18.MapMode = "FlatFace"
sketch18.AttachmentOffset = App.Placement(App.Vector(0, 0, -62), App.Rotation())
add_polygon(sketch18, [(-98, -42), (-98, -22), (-76, -22), (-76, -42)])
add_polygon(sketch18, [(76, -42), (76, -22), (98, -22), (98, -42)])
sketch18.addConstraint([
    Sketcher.Constraint("Vertical", 0),
    Sketcher.Constraint("Horizontal", 1),
    Sketcher.Constraint("Vertical", 2),
    Sketcher.Constraint("Horizontal", 3),
    Sketcher.Constraint("Vertical", 4),
    Sketcher.Constraint("Horizontal", 5),
    Sketcher.Constraint("Vertical", 6),
    Sketcher.Constraint("Horizontal", 7),
    Sketcher.Constraint("Symmetric", 1, 2, 4, 2, -2),
    Sketcher.Constraint("Symmetric", 3, 2, 6, 2, -2),
    Sketcher.Constraint("DistanceX", 1, 1, 1, 2, 21.0),
    Sketcher.Constraint("DistanceY", 0, 1, 0, 2, 20.0),
    Sketcher.Constraint("DistanceY", 0, 2, -1, 1, 22.0),
    Sketcher.Constraint("DistanceX", 1, 2, 4, 2, 153.0),
])
pocket9 = doc.addObject("PartDesign::Pocket", "Pocket008")
body.addObject(pocket9)
pocket9.Profile = sketch18
pocket9.Length = 12
pocket9.Reversed = True

sketch19 = doc.addObject("Sketcher::SketchObject", "Sketch018")
body.addObject(sketch19)
sketch19.AttachmentSupport = (doc.YZ_Plane, [""])
sketch19.MapMode = "FlatFace"
sketch19.AttachmentOffset = App.Placement(App.Vector(0, 0, -107), App.Rotation())
sketch19.addGeometry(Part.Circle(App.Vector(62, -32, 0), App.Vector(0, 0, 1), 3), False)
sketch19.addConstraint([
    Sketcher.Constraint("Diameter", 0, 6.0),
    Sketcher.Constraint("DistanceX", -1, 1, 0, 3, 62.0),
    Sketcher.Constraint("DistanceY", 0, 3, -1, 1, 32.0),
])
pocket10 = doc.addObject("PartDesign::Pocket", "Pocket009")
body.addObject(pocket10)
pocket10.Profile = sketch19
pocket10.Length = 40
pocket10.Reversed = True

sketch20 = doc.addObject("Sketcher::SketchObject", "Sketch019")
body.addObject(sketch20)
sketch20.AttachmentSupport = (doc.YZ_Plane, [""])
sketch20.MapMode = "FlatFace"
sketch20.AttachmentOffset = App.Placement(App.Vector(0, 0, 107), App.Rotation())
sketch20.addGeometry(Part.Circle(App.Vector(62, -32, 0), App.Vector(0, 0, 1), 3), False)
sketch20.addConstraint([
    Sketcher.Constraint("Diameter", 0, 6.0),
    Sketcher.Constraint("DistanceX", -1, 1, 0, 3, 62.0),
    Sketcher.Constraint("DistanceY", 0, 3, -1, 1, 32.0),
])
pocket11 = doc.addObject("PartDesign::Pocket", "Pocket010")
body.addObject(pocket11)
pocket11.Profile = sketch20
pocket11.Length = 40

sketch21 = doc.addObject("Sketcher::SketchObject", "Sketch020")
body.addObject(sketch21)
sketch21.AttachmentSupport = (doc.XZ_Plane, [""])
sketch21.MapMode = "FlatFace"
sketch21.AttachmentOffset = App.Placement(App.Vector(0, 0, -20), App.Rotation())
add_polygon(sketch21, [(-102, -136), (-102, -116), (-72, -116), (-72, -136)])
add_polygon(sketch21, [(72, -136), (72, -116), (102, -116), (102, -136)])
sketch21.addConstraint([
    Sketcher.Constraint("Vertical", 0),
    Sketcher.Constraint("Horizontal", 1),
    Sketcher.Constraint("Vertical", 2),
    Sketcher.Constraint("Horizontal", 3),
    Sketcher.Constraint("Vertical", 4),
    Sketcher.Constraint("Horizontal", 5),
    Sketcher.Constraint("Vertical", 6),
    Sketcher.Constraint("Horizontal", 7),
    Sketcher.Constraint("Symmetric", 1, 2, 4, 2, -2),
    Sketcher.Constraint("Symmetric", 3, 2, 6, 2, -2),
    Sketcher.Constraint("DistanceX", 1, 1, 1, 2, 30.0),
    Sketcher.Constraint("DistanceY", 0, 1, 0, 2, 20.0),
    Sketcher.Constraint("DistanceX", 0, 2, -1, 1, 102.0),
    Sketcher.Constraint("DistanceY", 0, 2, -1, 1, 116.0),
])
pad8 = doc.addObject("PartDesign::Pad", "Pad007")
body.addObject(pad8)
pad8.Profile = sketch21
pad8.Length = 32
pad8.Reversed = True

sketch22 = doc.addObject("Sketcher::SketchObject", "Sketch021")
body.addObject(sketch22)
sketch22.AttachmentSupport = (doc.XY_Plane, [""])
sketch22.MapMode = "FlatFace"
sketch22.AttachmentOffset = App.Placement(App.Vector(0, 0, -116), App.Rotation())
sketch22.addGeometry(Part.Circle(App.Vector(87, 38, 0), App.Vector(0, 0, 1), 5), False)
sketch22.addConstraint([
    Sketcher.Constraint("Diameter", 0, 10.0),
    Sketcher.Constraint("DistanceX", -1, 1, 0, 3, 87.0),
    Sketcher.Constraint("DistanceY", -1, 1, 0, 3, 38.0),
])
pocket12 = doc.addObject("PartDesign::Pocket", "Pocket011")
body.addObject(pocket12)
pocket12.Profile = sketch22
pocket12.Type = "UpToFirst"

sketch23 = doc.addObject("Sketcher::SketchObject", "Sketch022")
body.addObject(sketch23)
sketch23.AttachmentSupport = (doc.XY_Plane, [""])
sketch23.MapMode = "FlatFace"
sketch23.AttachmentOffset = App.Placement(App.Vector(0, 0, -116), App.Rotation())
sketch23.addGeometry(Part.Circle(App.Vector(-87, 38, 0), App.Vector(0, 0, 1), 5), False)
sketch23.addConstraint([
    Sketcher.Constraint("Diameter", 0, 10.0),
    Sketcher.Constraint("DistanceX", 0, 3, -1, 1, 87.0),
    Sketcher.Constraint("DistanceY", -1, 1, 0, 3, 38.0),
])
pocket13 = doc.addObject("PartDesign::Pocket", "Pocket012")
body.addObject(pocket13)
pocket13.Profile = sketch23
pocket13.Type = "UpToFirst"

doc.recompute()
